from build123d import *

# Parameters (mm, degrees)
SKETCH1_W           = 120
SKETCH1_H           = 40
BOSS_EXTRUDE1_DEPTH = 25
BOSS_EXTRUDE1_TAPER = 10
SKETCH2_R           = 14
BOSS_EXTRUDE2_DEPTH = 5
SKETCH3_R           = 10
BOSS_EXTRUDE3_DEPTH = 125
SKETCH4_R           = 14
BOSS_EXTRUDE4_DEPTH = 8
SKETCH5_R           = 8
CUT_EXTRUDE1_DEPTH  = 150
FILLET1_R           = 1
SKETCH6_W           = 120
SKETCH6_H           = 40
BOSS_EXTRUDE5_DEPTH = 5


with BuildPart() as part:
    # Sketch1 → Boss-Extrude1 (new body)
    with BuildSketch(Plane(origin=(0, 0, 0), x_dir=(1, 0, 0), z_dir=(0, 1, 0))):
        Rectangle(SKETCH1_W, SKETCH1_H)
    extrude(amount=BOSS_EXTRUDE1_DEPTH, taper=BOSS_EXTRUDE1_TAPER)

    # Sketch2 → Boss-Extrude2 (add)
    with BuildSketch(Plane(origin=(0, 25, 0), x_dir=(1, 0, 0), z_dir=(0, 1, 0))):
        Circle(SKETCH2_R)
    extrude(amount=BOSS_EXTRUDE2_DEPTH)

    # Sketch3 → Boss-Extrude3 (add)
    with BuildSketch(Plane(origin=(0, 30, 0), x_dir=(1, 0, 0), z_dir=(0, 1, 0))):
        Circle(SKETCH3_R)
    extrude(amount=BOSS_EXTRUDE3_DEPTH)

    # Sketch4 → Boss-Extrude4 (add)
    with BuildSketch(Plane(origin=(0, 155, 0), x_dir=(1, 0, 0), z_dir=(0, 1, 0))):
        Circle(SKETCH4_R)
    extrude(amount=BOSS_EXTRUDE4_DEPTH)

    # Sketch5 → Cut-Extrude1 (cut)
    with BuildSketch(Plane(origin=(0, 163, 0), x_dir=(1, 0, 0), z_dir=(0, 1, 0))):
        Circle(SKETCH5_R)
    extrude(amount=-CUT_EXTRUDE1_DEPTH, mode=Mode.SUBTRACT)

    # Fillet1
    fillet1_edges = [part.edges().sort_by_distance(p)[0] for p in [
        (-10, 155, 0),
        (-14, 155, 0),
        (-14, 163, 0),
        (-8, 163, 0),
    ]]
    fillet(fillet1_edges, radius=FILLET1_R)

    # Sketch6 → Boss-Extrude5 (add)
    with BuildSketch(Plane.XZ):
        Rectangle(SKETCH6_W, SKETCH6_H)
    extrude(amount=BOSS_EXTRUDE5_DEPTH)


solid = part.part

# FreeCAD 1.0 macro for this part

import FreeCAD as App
import Part
import Sketcher


def edges_at(feature, points):
    """Names of the edges that pass closest to the given points."""
    edges = feature.Shape.Edges
    near = lambda p: min(range(len(edges)), key=lambda i: edges[i].distToShape(Part.Vertex(*p))[0])
    return sorted({f"Edge{near(p) + 1}" for p in points})


def add_polygon(sketch, points):
    """Adds a closed chain of lines whose ends are joined by coincident constraints."""
    first, n = sketch.GeometryCount, len(points)
    for a, b in zip(points, points[1:] + points[:1]):
        sketch.addGeometry(Part.LineSegment(App.Vector(*a, 0), App.Vector(*b, 0)), False)
    for i in range(n):
        sketch.addConstraint(Sketcher.Constraint("Coincident", first + i, 2, first + (i + 1) % n, 1))

doc = App.newDocument("Part")
body = doc.addObject("PartDesign::Body", "Body")

# Sketch on XZ plane
sketch1 = doc.addObject("Sketcher::SketchObject", "Sketch")
body.addObject(sketch1)
sketch1.AttachmentSupport = (doc.XZ_Plane, [""])
sketch1.MapMode = "FlatFace"
add_polygon(sketch1, [(-60, -20), (-60, 20), (60, 20), (60, -20)])  # lines 0-3
sketch1.addConstraint([
    Sketcher.Constraint("Vertical", 0),
    Sketcher.Constraint("Horizontal", 1),
    Sketcher.Constraint("Vertical", 2),
    Sketcher.Constraint("Horizontal", 3),
    Sketcher.Constraint("Symmetric", 0, 2, 2, 2, -1, 1),
    Sketcher.Constraint("DistanceX", 1, 1, 1, 2, 120.0),
    Sketcher.Constraint("DistanceY", 0, 1, 0, 2, 40.0),
])
pad1 = doc.addObject("PartDesign::Pad", "Pad")
body.addObject(pad1)
pad1.Profile = sketch1
pad1.Length = 25
pad1.Reversed = True
pad1.TaperAngle = -10

# Sketch on XZ plane
sketch2 = doc.addObject("Sketcher::SketchObject", "Sketch001")
body.addObject(sketch2)
sketch2.AttachmentSupport = (doc.XZ_Plane, [""])
sketch2.MapMode = "FlatFace"
sketch2.AttachmentOffset = App.Placement(App.Vector(0, 0, -25), App.Rotation())
sketch2.addGeometry(Part.Circle(App.Vector(0, 0, 0), App.Vector(0, 0, 1), 14), False)
sketch2.addConstraint([
    Sketcher.Constraint("Coincident", 0, 3, -1, 1),
    Sketcher.Constraint("Diameter", 0, 28.0),
])
pad2 = doc.addObject("PartDesign::Pad", "Pad001")
body.addObject(pad2)
pad2.Profile = sketch2
pad2.Length = 5
pad2.Reversed = True

# Sketch on XZ plane
sketch3 = doc.addObject("Sketcher::SketchObject", "Sketch002")
body.addObject(sketch3)
sketch3.AttachmentSupport = (doc.XZ_Plane, [""])
sketch3.MapMode = "FlatFace"
sketch3.AttachmentOffset = App.Placement(App.Vector(0, 0, -30), App.Rotation())
sketch3.addGeometry(Part.Circle(App.Vector(0, 0, 0), App.Vector(0, 0, 1), 10), False)
sketch3.addConstraint([
    Sketcher.Constraint("Coincident", 0, 3, -1, 1),
    Sketcher.Constraint("Diameter", 0, 20.0),
])
pad3 = doc.addObject("PartDesign::Pad", "Pad002")
body.addObject(pad3)
pad3.Profile = sketch3
pad3.Length = 125
pad3.Reversed = True

# Sketch on XZ plane
sketch4 = doc.addObject("Sketcher::SketchObject", "Sketch003")
body.addObject(sketch4)
sketch4.AttachmentSupport = (doc.XZ_Plane, [""])
sketch4.MapMode = "FlatFace"
sketch4.AttachmentOffset = App.Placement(App.Vector(0, 0, -155), App.Rotation())
sketch4.addGeometry(Part.Circle(App.Vector(0, 0, 0), App.Vector(0, 0, 1), 14), False)
sketch4.addConstraint([
    Sketcher.Constraint("Coincident", 0, 3, -1, 1),
    Sketcher.Constraint("Diameter", 0, 28.0),
])
pad4 = doc.addObject("PartDesign::Pad", "Pad003")
body.addObject(pad4)
pad4.Profile = sketch4
pad4.Length = 8
pad4.Reversed = True

# Sketch on XZ plane
sketch5 = doc.addObject("Sketcher::SketchObject", "Sketch004")
body.addObject(sketch5)
sketch5.AttachmentSupport = (doc.XZ_Plane, [""])
sketch5.MapMode = "FlatFace"
sketch5.AttachmentOffset = App.Placement(App.Vector(0, 0, -163), App.Rotation())
sketch5.addGeometry(Part.Circle(App.Vector(0, 0, 0), App.Vector(0, 0, 1), 8), False)
sketch5.addConstraint([
    Sketcher.Constraint("Coincident", 0, 3, -1, 1),
    Sketcher.Constraint("Diameter", 0, 16.0),
])
pocket1 = doc.addObject("PartDesign::Pocket", "Pocket")
body.addObject(pocket1)
pocket1.Profile = sketch5
pocket1.Length = 150
pocket1.Reversed = True
doc.recompute()

fillet = doc.addObject("PartDesign::Fillet", "Fillet")
body.addObject(fillet)
fillet.Base = (pocket1, edges_at(pocket1, [
    (-10, 155, 0),
    (-14, 155, 0),
    (-14, 163, 0),
    (-8, 163, 0),
]))
fillet.Radius = 1

# Sketch on XZ plane
sketch6 = doc.addObject("Sketcher::SketchObject", "Sketch005")
body.addObject(sketch6)
sketch6.AttachmentSupport = (doc.XZ_Plane, [""])
sketch6.MapMode = "FlatFace"
add_polygon(sketch6, [(-60, 20), (-60, -20), (60, -20), (60, 20)])  # lines 0-3
sketch6.addConstraint([
    Sketcher.Constraint("Vertical", 0),
    Sketcher.Constraint("Horizontal", 1),
    Sketcher.Constraint("Vertical", 2),
    Sketcher.Constraint("Horizontal", 3),
    Sketcher.Constraint("Symmetric", 0, 2, 2, 2, -1, 1),
    Sketcher.Constraint("DistanceX", 1, 1, 1, 2, 120.0),
    Sketcher.Constraint("DistanceY", 0, 2, 0, 1, 40.0),
])
pad5 = doc.addObject("PartDesign::Pad", "Pad004")
body.addObject(pad5)
pad5.Profile = sketch6
pad5.Length = 5

doc.recompute()
